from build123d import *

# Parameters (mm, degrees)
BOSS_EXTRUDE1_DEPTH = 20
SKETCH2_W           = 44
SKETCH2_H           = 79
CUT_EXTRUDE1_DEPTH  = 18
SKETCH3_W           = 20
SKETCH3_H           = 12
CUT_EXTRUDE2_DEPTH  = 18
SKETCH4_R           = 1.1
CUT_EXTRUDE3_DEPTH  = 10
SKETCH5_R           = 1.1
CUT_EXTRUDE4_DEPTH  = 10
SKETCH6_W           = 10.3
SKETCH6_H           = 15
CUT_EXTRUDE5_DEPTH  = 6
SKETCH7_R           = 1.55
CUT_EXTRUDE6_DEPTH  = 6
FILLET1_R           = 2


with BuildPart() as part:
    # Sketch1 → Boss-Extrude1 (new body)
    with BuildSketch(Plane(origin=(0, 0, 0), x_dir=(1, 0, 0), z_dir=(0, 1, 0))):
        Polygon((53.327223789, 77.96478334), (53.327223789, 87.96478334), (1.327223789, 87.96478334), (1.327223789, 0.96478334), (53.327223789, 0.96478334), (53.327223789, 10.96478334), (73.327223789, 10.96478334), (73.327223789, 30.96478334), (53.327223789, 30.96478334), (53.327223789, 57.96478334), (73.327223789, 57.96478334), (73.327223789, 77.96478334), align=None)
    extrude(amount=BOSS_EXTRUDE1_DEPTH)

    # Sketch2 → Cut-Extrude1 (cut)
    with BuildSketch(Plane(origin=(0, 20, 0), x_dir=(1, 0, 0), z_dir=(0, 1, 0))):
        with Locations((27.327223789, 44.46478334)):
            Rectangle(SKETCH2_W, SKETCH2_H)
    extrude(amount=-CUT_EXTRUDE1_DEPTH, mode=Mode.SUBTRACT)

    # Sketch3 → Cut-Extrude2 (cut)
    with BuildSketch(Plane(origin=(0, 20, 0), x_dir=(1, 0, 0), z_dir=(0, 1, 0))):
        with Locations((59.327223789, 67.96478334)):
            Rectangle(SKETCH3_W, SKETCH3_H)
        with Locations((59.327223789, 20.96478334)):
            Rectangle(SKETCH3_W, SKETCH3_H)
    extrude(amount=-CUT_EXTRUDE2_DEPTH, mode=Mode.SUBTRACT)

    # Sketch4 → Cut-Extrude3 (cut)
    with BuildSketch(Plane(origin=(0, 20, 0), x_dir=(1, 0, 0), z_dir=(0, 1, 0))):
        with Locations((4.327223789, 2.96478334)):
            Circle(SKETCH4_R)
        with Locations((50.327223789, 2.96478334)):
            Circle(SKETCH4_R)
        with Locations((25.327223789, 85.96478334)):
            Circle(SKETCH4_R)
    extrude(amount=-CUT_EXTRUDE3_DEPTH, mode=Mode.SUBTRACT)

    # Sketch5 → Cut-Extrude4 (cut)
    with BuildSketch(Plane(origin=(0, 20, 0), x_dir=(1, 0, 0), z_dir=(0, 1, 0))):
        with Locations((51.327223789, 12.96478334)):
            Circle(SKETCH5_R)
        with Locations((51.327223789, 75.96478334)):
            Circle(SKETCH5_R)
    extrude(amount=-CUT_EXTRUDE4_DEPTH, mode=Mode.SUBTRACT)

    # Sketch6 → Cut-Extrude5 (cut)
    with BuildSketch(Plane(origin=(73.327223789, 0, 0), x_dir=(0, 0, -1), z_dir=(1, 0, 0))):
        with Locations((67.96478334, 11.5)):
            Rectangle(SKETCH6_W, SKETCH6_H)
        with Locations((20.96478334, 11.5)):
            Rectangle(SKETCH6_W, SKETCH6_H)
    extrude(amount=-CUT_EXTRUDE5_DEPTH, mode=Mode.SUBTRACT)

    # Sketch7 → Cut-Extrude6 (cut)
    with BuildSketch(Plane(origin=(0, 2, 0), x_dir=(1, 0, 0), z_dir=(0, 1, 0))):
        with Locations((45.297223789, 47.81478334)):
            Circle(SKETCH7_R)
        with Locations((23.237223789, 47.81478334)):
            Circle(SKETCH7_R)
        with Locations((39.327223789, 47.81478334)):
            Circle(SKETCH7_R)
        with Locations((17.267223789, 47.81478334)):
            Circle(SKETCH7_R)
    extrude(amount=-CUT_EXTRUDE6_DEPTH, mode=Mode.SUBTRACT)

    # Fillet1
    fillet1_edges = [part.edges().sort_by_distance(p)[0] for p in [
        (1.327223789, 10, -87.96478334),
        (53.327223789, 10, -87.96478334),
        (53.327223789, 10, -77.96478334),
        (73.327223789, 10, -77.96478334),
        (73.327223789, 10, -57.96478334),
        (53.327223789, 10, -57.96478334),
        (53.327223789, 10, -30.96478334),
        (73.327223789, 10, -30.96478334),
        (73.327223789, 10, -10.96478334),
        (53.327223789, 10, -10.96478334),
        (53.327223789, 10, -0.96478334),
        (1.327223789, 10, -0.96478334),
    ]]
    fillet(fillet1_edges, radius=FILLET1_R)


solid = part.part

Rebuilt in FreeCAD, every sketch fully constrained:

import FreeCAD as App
import Part
import Sketcher

V = App.Vector
Q = App.Units.Quantity


def edges_at(feature, points):
    """Names of the edges that pass closest to the given points."""
    edges = feature.Shape.Edges
    near = lambda p: min(range(len(edges)), key=lambda i: edges[i].distToShape(Part.Vertex(*p))[0])
    return sorted({f"Edge{near(p) + 1}" for p in points})


def add_polygon(sketch, points):
    """Adds a closed chain of lines whose ends are joined by coincident constraints."""
    first, n = sketch.GeometryCount, len(points)
    for a, b in zip(points, points[1:] + points[:1]):
        sketch.addGeometry(Part.LineSegment(App.Vector(*a, 0), App.Vector(*b, 0)), False)
    for i in range(n):
        sketch.addConstraint(Sketcher.Constraint("Coincident", first + i, 2, first + (i + 1) % n, 1))

doc = App.newDocument("Part")
body = doc.addObject("PartDesign::Body", "Body")

# Sketch on XZ plane
sketch1 = doc.addObject("Sketcher::SketchObject", "Sketch")
body.addObject(sketch1)
sketch1.AttachmentSupport = (doc.XZ_Plane, [""])
sketch1.MapMode = "FlatFace"
add_polygon(sketch1, [(53, -78), (53, -88), (1, -88), (1, -1), (53, -1), (53, -11), (73, -11), (73, -31), (53, -31), (53, -58), (73, -58), (73, -78)])  # lines 0-11
sketch1.addConstraint(Sketcher.Constraint("Vertical", 0))
sketch1.addConstraint(Sketcher.Constraint("Horizontal", 1))
sketch1.addConstraint(Sketcher.Constraint("Vertical", 2))
sketch1.addConstraint(Sketcher.Constraint("Horizontal", 3))
sketch1.addConstraint(Sketcher.Constraint("Vertical", 4))
sketch1.addConstraint(Sketcher.Constraint("Horizontal", 5))
sketch1.addConstraint(Sketcher.Constraint("Vertical", 6))
sketch1.addConstraint(Sketcher.Constraint("Horizontal", 7))
sketch1.addConstraint(Sketcher.Constraint("Vertical", 8))
sketch1.addConstraint(Sketcher.Constraint("Horizontal", 9))
sketch1.addConstraint(Sketcher.Constraint("Vertical", 10))
sketch1.addConstraint(Sketcher.Constraint("Horizontal", 11))
sketch1.addConstraint(Sketcher.Constraint("Vertical", 0, 2, 3, 2))
sketch1.addConstraint(Sketcher.Constraint("Vertical", 4, 2, 7, 2))
sketch1.addConstraint(Sketcher.Constraint("Vertical", 6, 2, 9, 2))
sketch1.addConstraint(Sketcher.Constraint("Equal", 0, 4))
sketch1.addConstraint(Sketcher.Constraint("Equal", 11, 6))
sketch1.addConstraint(Sketcher.Constraint("Equal", 6, 10))
sketch1.addConstraint(Sketcher.Constraint("DistanceX", 1, 2, 1, 1, Q("52 mm")))
sketch1.addConstraint(Sketcher.Constraint("DistanceX", 5, 1, 5, 2, Q("20 mm")))
sketch1.addConstraint(Sketcher.Constraint("DistanceY", 0, 2, 0, 1, Q("10 mm")))
sketch1.addConstraint(Sketcher.Constraint("DistanceY", 2, 1, 2, 2, Q("87 mm")))
sketch1.addConstraint(Sketcher.Constraint("DistanceX", -1, 1, 0, 2, Q("53.327224 mm")))
sketch1.addConstraint(Sketcher.Constraint("DistanceY", 0, 2, -1, 1, Q("87.964783 mm")))
pad1 = doc.addObject("PartDesign::Pad", "Pad")
body.addObject(pad1)
pad1.Profile = sketch1
pad1.Length = 20
pad1.Reversed = True

# Sketch on XZ plane
sketch2 = doc.addObject("Sketcher::SketchObject", "Sketch001")
body.addObject(sketch2)
sketch2.AttachmentSupport = (doc.XZ_Plane, [""])
sketch2.MapMode = "FlatFace"
sketch2.AttachmentOffset = App.Placement(V(0, 0, -20), App.Rotation())
add_polygon(sketch2, [(5, -84), (5, -5), (49, -5), (49, -84)])  # lines 0-3
sketch2.addConstraint(Sketcher.Constraint("Vertical", 0))
sketch2.addConstraint(Sketcher.Constraint("Horizontal", 1))
sketch2.addConstraint(Sketcher.Constraint("Vertical", 2))
sketch2.addConstraint(Sketcher.Constraint("Horizontal", 3))
sketch2.addConstraint(Sketcher.Constraint("DistanceX", 1, 1, 1, 2, Q("44 mm")))
sketch2.addConstraint(Sketcher.Constraint("DistanceY", 0, 1, 0, 2, Q("79 mm")))
sketch2.addConstraint(Sketcher.Constraint("DistanceX", -1, 1, 0, 2, Q("5.327224 mm")))
sketch2.addConstraint(Sketcher.Constraint("DistanceY", 0, 2, -1, 1, Q("4.964783 mm")))
pocket1 = doc.addObject("PartDesign::Pocket", "Pocket")
body.addObject(pocket1)
pocket1.Profile = sketch2
pocket1.Length = 18
pocket1.Reversed = True

# Sketch on XZ plane
sketch3 = doc.addObject("Sketcher::SketchObject", "Sketch002")
body.addObject(sketch3)
sketch3.AttachmentSupport = (doc.XZ_Plane, [""])
sketch3.MapMode = "FlatFace"
sketch3.AttachmentOffset = App.Placement(V(0, 0, -20), App.Rotation())
add_polygon(sketch3, [(49, -74), (49, -62), (69, -62), (69, -74)])  # lines 0-3
add_polygon(sketch3, [(49, -27), (49, -15), (69, -15), (69, -27)])  # lines 4-7
sketch3.addConstraint(Sketcher.Constraint("Vertical", 0))
sketch3.addConstraint(Sketcher.Constraint("Horizontal", 1))
sketch3.addConstraint(Sketcher.Constraint("Vertical", 2))
sketch3.addConstraint(Sketcher.Constraint("Horizontal", 3))
sketch3.addConstraint(Sketcher.Constraint("Vertical", 4))
sketch3.addConstraint(Sketcher.Constraint("Horizontal", 5))
sketch3.addConstraint(Sketcher.Constraint("Vertical", 6))
sketch3.addConstraint(Sketcher.Constraint("Horizontal", 7))
sketch3.addConstraint(Sketcher.Constraint("Vertical", 3, 2, 4, 2))
sketch3.addConstraint(Sketcher.Constraint("Vertical", 2, 2, 5, 2))
sketch3.addConstraint(Sketcher.Constraint("Equal", 2, 4))
sketch3.addConstraint(Sketcher.Constraint("DistanceX", 1, 1, 1, 2, Q("20 mm")))
sketch3.addConstraint(Sketcher.Constraint("DistanceY", 0, 1, 0, 2, Q("12 mm")))
sketch3.addConstraint(Sketcher.Constraint("DistanceY", 0, 2, 4, 2, Q("47 mm")))
sketch3.addConstraint(Sketcher.Constraint("DistanceX", -1, 1, 0, 2, Q("49.327224 mm")))
sketch3.addConstraint(Sketcher.Constraint("DistanceY", 0, 2, -1, 1, Q("61.964783 mm")))
pocket2 = doc.addObject("PartDesign::Pocket", "Pocket001")
body.addObject(pocket2)
pocket2.Profile = sketch3
pocket2.Length = 18
pocket2.Reversed = True

# Sketch on XZ plane
sketch4 = doc.addObject("Sketcher::SketchObject", "Sketch003")
body.addObject(sketch4)
sketch4.AttachmentSupport = (doc.XZ_Plane, [""])
sketch4.MapMode = "FlatFace"
sketch4.AttachmentOffset = App.Placement(V(0, 0, -20), App.Rotation())
sketch4.addGeometry(Part.Circle(V(4.3, -3, 0), V(0, 0, 1), 1.1), False)
sketch4.addGeometry(Part.Circle(V(50.3, -3, 0), V(0, 0, 1), 1.1), False)
sketch4.addGeometry(Part.Circle(V(25.3, -86, 0), V(0, 0, 1), 1.1), False)
sketch4.addConstraint(Sketcher.Constraint("Equal", 0, 1))
sketch4.addConstraint(Sketcher.Constraint("Equal", 1, 2))
sketch4.addConstraint(Sketcher.Constraint("Horizontal", 0, 3, 1, 3))
sketch4.addConstraint(Sketcher.Constraint("Diameter", 0, Q("2.2 mm")))
sketch4.addConstraint(Sketcher.Constraint("DistanceX", 0, 3, 1, 3, Q("46 mm")))
sketch4.addConstraint(Sketcher.Constraint("DistanceX", 0, 3, 2, 3, Q("21 mm")))
sketch4.addConstraint(Sketcher.Constraint("DistanceY", 2, 3, 0, 3, Q("83 mm")))
sketch4.addConstraint(Sketcher.Constraint("DistanceX", -1, 1, 0, 3, Q("4.327224 mm")))
sketch4.addConstraint(Sketcher.Constraint("DistanceY", 0, 3, -1, 1, Q("2.964783 mm")))
pocket3 = doc.addObject("PartDesign::Pocket", "Pocket002")
body.addObject(pocket3)
pocket3.Profile = sketch4
pocket3.Length = 10
pocket3.Reversed = True

# Sketch on XZ plane
sketch5 = doc.addObject("Sketcher::SketchObject", "Sketch004")
body.addObject(sketch5)
sketch5.AttachmentSupport = (doc.XZ_Plane, [""])
sketch5.MapMode = "FlatFace"
sketch5.AttachmentOffset = App.Placement(V(0, 0, -20), App.Rotation())
sketch5.addGeometry(Part.Circle(V(51.3, -13, 0), V(0, 0, 1), 1.1), False)
sketch5.addGeometry(Part.Circle(V(51.3, -76, 0), V(0, 0, 1), 1.1), False)
sketch5.addConstraint(Sketcher.Constraint("Equal", 0, 1))
sketch5.addConstraint(Sketcher.Constraint("Vertical", 0, 3, 1, 3))
sketch5.addConstraint(Sketcher.Constraint("Diameter", 0, Q("2.2 mm")))
sketch5.addConstraint(Sketcher.Constraint("DistanceY", 1, 3, 0, 3, Q("63 mm")))
sketch5.addConstraint(Sketcher.Constraint("DistanceX", -1, 1, 0, 3, Q("51.327224 mm")))
sketch5.addConstraint(Sketcher.Constraint("DistanceY", 0, 3, -1, 1, Q("12.964783 mm")))
pocket4 = doc.addObject("PartDesign::Pocket", "Pocket003")
body.addObject(pocket4)
pocket4.Profile = sketch5
pocket4.Length = 10
pocket4.Reversed = True

# Sketch on YZ plane
sketch6 = doc.addObject("Sketcher::SketchObject", "Sketch005")
body.addObject(sketch6)
sketch6.AttachmentSupport = (doc.YZ_Plane, [""])
sketch6.MapMode = "FlatFace"
sketch6.AttachmentOffset = App.Placement(V(0, 0, 73.327224), App.Rotation())
add_polygon(sketch6, [(19, -63), (4, -63), (4, -73), (19, -73)])  # lines 0-3
add_polygon(sketch6, [(19, -16), (4, -16), (4, -26), (19, -26)])  # lines 4-7
sketch6.addConstraint(Sketcher.Constraint("Horizontal", 0))
sketch6.addConstraint(Sketcher.Constraint("Vertical", 1))
sketch6.addConstraint(Sketcher.Constraint("Horizontal", 2))
sketch6.addConstraint(Sketcher.Constraint("Vertical", 3))
sketch6.addConstraint(Sketcher.Constraint("Horizontal", 4))
sketch6.addConstraint(Sketcher.Constraint("Vertical", 5))
sketch6.addConstraint(Sketcher.Constraint("Horizontal", 6))
sketch6.addConstraint(Sketcher.Constraint("Vertical", 7))
sketch6.addConstraint(Sketcher.Constraint("Vertical", 1, 2, 4, 2))
sketch6.addConstraint(Sketcher.Constraint("Vertical", 3, 2, 6, 2))
sketch6.addConstraint(Sketcher.Constraint("Equal", 3, 5))
sketch6.addConstraint(Sketcher.Constraint("DistanceX", 0, 2, 0, 1, Q("15 mm")))
sketch6.addConstraint(Sketcher.Constraint("DistanceY", 1, 2, 1, 1, Q("10.3 mm")))
sketch6.addConstraint(Sketcher.Constraint("DistanceX", -1, 1, 0, 2, Q("4 mm")))
sketch6.addConstraint(Sketcher.Constraint("DistanceY", 0, 2, 4, 2, Q("47 mm")))
sketch6.addConstraint(Sketcher.Constraint("DistanceY", 0, 2, -1, 1, Q("62.814783 mm")))
pocket5 = doc.addObject("PartDesign::Pocket", "Pocket004")
body.addObject(pocket5)
pocket5.Profile = sketch6
pocket5.Length = 6

# Sketch on XZ plane
sketch7 = doc.addObject("Sketcher::SketchObject", "Sketch006")
body.addObject(sketch7)
sketch7.AttachmentSupport = (doc.XZ_Plane, [""])
sketch7.MapMode = "FlatFace"
sketch7.AttachmentOffset = App.Placement(V(0, 0, -2), App.Rotation())
sketch7.addGeometry(Part.Circle(V(45.3, -47.8, 0), V(0, 0, 1), 1.6), False)
sketch7.addGeometry(Part.Circle(V(23.2, -47.8, 0), V(0, 0, 1), 1.6), False)
sketch7.addGeometry(Part.Circle(V(39.3, -47.8, 0), V(0, 0, 1), 1.6), False)
sketch7.addGeometry(Part.Circle(V(17.3, -47.8, 0), V(0, 0, 1), 1.6), False)
sketch7.addConstraint(Sketcher.Constraint("Equal", 0, 1))
sketch7.addConstraint(Sketcher.Constraint("Equal", 1, 2))
sketch7.addConstraint(Sketcher.Constraint("Equal", 2, 3))
sketch7.addConstraint(Sketcher.Constraint("Horizontal", 0, 3, 1, 3))
sketch7.addConstraint(Sketcher.Constraint("Horizontal", 1, 3, 2, 3))
sketch7.addConstraint(Sketcher.Constraint("Horizontal", 2, 3, 3, 3))
sketch7.addConstraint(Sketcher.Constraint("Diameter", 0, Q("3.1 mm")))
sketch7.addConstraint(Sketcher.Constraint("DistanceX", 1, 3, 0, 3, Q("22.06 mm")))
sketch7.addConstraint(Sketcher.Constraint("DistanceX", 2, 3, 0, 3, Q("5.97 mm")))
sketch7.addConstraint(Sketcher.Constraint("DistanceX", 3, 3, 1, 3, Q("5.97 mm")))
sketch7.addConstraint(Sketcher.Constraint("DistanceX", -1, 1, 0, 3, Q("45.297224 mm")))
sketch7.addConstraint(Sketcher.Constraint("DistanceY", 0, 3, -1, 1, Q("47.814783 mm")))
pocket6 = doc.addObject("PartDesign::Pocket", "Pocket005")
body.addObject(pocket6)
pocket6.Profile = sketch7
pocket6.Length = 6
pocket6.Reversed = True
doc.recompute()

fillet = doc.addObject("PartDesign::Fillet", "Fillet")
body.addObject(fillet)
fillet.Base = (pocket6, edges_at(pocket6, [
    (1.327, 10, -87.965),
    (53.327, 10, -87.965),
    (53.327, 10, -77.965),
    (73.327, 10, -77.965),
    (73.327, 10, -57.965),
    (53.327, 10, -57.965),
    (53.327, 10, -30.965),
    (73.327, 10, -30.965),
    (73.327, 10, -10.965),
    (53.327, 10, -10.965),
    (53.327, 10, -0.965),
    (1.327, 10, -0.965),
]))
fillet.Radius = 2

doc.recompute()
